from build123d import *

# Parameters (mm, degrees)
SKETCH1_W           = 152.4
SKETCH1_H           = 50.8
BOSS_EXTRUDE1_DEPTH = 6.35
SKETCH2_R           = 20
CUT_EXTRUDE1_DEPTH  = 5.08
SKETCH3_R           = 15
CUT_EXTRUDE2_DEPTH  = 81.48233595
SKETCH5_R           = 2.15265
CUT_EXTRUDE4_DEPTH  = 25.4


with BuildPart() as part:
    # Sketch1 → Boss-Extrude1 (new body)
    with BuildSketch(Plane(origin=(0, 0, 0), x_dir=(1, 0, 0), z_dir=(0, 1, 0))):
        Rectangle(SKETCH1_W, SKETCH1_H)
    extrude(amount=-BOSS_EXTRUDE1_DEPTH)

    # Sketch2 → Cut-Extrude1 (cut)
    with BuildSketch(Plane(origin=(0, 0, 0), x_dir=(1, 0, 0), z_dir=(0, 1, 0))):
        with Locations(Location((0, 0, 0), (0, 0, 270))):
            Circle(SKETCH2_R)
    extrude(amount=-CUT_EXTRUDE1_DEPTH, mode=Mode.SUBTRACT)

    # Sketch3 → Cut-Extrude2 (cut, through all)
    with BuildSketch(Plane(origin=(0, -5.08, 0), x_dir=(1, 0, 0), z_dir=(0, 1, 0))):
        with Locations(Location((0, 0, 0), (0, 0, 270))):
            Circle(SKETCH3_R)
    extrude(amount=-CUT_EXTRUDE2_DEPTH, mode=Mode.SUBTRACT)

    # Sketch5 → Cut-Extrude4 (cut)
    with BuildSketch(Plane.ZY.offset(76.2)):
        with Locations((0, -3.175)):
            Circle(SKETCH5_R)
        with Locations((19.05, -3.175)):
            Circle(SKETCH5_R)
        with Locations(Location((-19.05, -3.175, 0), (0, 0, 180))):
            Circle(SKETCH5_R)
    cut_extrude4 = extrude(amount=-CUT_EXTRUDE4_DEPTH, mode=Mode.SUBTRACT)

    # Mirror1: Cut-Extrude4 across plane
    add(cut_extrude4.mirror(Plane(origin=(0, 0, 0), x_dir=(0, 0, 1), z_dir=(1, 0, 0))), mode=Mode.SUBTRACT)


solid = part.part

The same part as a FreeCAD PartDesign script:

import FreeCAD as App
import Part
import Sketcher

V = App.Vector
Q = App.Units.Quantity


def add_polygon(sketch, points):
    """Adds a closed chain of lines whose ends are joined by coincident constraints."""
    first, n = sketch.GeometryCount, len(points)
    for a, b in zip(points, points[1:] + points[:1]):
        sketch.addGeometry(Part.LineSegment(App.Vector(*a, 0), App.Vector(*b, 0)), False)
    for i in range(n):
        sketch.addConstraint(Sketcher.Constraint("Coincident", first + i, 2, first + (i + 1) % n, 1))

doc = App.newDocument("Part")
params = doc.addObject("Spreadsheet::Sheet", "Params")
for row, (alias, value) in enumerate([
    ("sketch1_width", "6 in"),
    ("sketch1_height", "2 in"),
    ("pad1_length", "0.25 in"),
    ("pocket1_length", "0.2 in"),
    ("pocket3_length", "1 in"),
], start=1):
    params.set(f"A{row}", alias)
    params.set(f"B{row}", "=" + value)
    params.setAlias(f"B{row}", alias)

body = doc.addObject("PartDesign::Body", "Body")

# Sketch on XZ plane
sketch1 = body.newObject("Sketcher::SketchObject", "Sketch")
sketch1.AttachmentSupport = (doc.getObject("XZ_Plane"), [""])
sketch1.MapMode = "FlatFace"
add_polygon(sketch1, [(-76.2, -25.4), (-76.2, 25.4), (76.2, 25.4), (76.2, -25.4)])  # lines 0-3
sketch1.addConstraint([
    Sketcher.Constraint("Vertical", 0),
    Sketcher.Constraint("Horizontal", 1),
    Sketcher.Constraint("Vertical", 2),
    Sketcher.Constraint("Horizontal", 3),
    Sketcher.Constraint("Symmetric", 0, 2, 2, 2, -1, 1),
    Sketcher.Constraint("DistanceX", 1, 1, 1, 2, Q("6 in")),
    Sketcher.Constraint("DistanceY", 0, 1, 0, 2, Q("2 in")),
])
sketch1.setExpression("Constraints[9]", "Params.sketch1_width")
sketch1.setExpression("Constraints[10]", "Params.sketch1_height")
pad1 = body.newObject("PartDesign::Pad", "Pad")
pad1.Profile = sketch1
pad1.setExpression("Length", "Params.pad1_length")

# Sketch on XZ plane
sketch2 = body.newObject("Sketcher::SketchObject", "Sketch001")
sketch2.AttachmentSupport = (doc.getObject("XZ_Plane"), [""])
sketch2.MapMode = "FlatFace"
sketch2.addGeometry(Part.Circle(V(0, 0, 0), V(0, 0, 1), 20), False)
sketch2.addConstraint([
    Sketcher.Constraint("Coincident", 0, 3, -1, 1),
    Sketcher.Constraint("Diameter", 0, Q("40 mm")),
])
pocket1 = body.newObject("PartDesign::Pocket", "Pocket")
pocket1.Profile = sketch2
pocket1.setExpression("Length", "Params.pocket1_length")
pocket1.Reversed = True

# Sketch on XZ plane
sketch3 = body.newObject("Sketcher::SketchObject", "Sketch002")
sketch3.AttachmentSupport = (doc.getObject("XZ_Plane"), [""])
sketch3.MapMode = "FlatFace"
sketch3.AttachmentOffset = App.Placement(V(0, 0, 0.2 * 25.4), App.Rotation())
sketch3.addGeometry(Part.Circle(V(0, 0, 0), V(0, 0, 1), 15), False)
sketch3.addConstraint([
    Sketcher.Constraint("Coincident", 0, 3, -1, 1),
    Sketcher.Constraint("Diameter", 0, Q("30 mm")),
])
pocket2 = body.newObject("PartDesign::Pocket", "Pocket001")
pocket2.Profile = sketch3
pocket2.Type = "ThroughAll"
pocket2.Reversed = True

# Sketch on YZ plane
sketch4 = body.newObject("Sketcher::SketchObject", "Sketch003")
sketch4.AttachmentSupport = (doc.getObject("YZ_Plane"), [""])
sketch4.MapMode = "FlatFace"
sketch4.AttachmentOffset = App.Placement(V(0, 0, -3 * 25.4), App.Rotation())
sketch4.addGeometry([
    Part.Circle(V(-3.175, 0, 0), V(0, 0, 1), 2.15265),
    Part.Circle(V(-3.175, 19.05, 0), V(0, 0, 1), 2.15265),
    Part.Circle(V(-3.175, -19.05, 0), V(0, 0, 1), 2.15265),
], False)
sketch4.addConstraint([
    Sketcher.Constraint("Equal", 0, 1),
    Sketcher.Constraint("Equal", 1, 2),
    Sketcher.Constraint("Symmetric", 1, 3, 2, 3, -1),
    Sketcher.Constraint("PointOnObject", 0, 3, -1),
    Sketcher.Constraint("Vertical", 0, 3, 1, 3),
    Sketcher.Constraint("Diameter", 0, Q("0.1695 in")),
    Sketcher.Constraint("DistanceY", 2, 3, 1, 3, Q("1.5 in")),
    Sketcher.Constraint("DistanceX", 0, 3, -1, 1, Q("0.125 in")),
])
pocket3 = body.newObject("PartDesign::Pocket", "Pocket002")
pocket3.Profile = sketch4
pocket3.setExpression("Length", "Params.pocket3_length")
pocket3.Reversed = True
doc.recompute()

mirrored = body.newObject("PartDesign::Mirrored", "Mirrored")
mirrored.Originals = [pocket3]
mirrored.MirrorPlane = (doc.getObject("YZ_Plane"), [""])
body.Tip = mirrored

doc.recompute()
